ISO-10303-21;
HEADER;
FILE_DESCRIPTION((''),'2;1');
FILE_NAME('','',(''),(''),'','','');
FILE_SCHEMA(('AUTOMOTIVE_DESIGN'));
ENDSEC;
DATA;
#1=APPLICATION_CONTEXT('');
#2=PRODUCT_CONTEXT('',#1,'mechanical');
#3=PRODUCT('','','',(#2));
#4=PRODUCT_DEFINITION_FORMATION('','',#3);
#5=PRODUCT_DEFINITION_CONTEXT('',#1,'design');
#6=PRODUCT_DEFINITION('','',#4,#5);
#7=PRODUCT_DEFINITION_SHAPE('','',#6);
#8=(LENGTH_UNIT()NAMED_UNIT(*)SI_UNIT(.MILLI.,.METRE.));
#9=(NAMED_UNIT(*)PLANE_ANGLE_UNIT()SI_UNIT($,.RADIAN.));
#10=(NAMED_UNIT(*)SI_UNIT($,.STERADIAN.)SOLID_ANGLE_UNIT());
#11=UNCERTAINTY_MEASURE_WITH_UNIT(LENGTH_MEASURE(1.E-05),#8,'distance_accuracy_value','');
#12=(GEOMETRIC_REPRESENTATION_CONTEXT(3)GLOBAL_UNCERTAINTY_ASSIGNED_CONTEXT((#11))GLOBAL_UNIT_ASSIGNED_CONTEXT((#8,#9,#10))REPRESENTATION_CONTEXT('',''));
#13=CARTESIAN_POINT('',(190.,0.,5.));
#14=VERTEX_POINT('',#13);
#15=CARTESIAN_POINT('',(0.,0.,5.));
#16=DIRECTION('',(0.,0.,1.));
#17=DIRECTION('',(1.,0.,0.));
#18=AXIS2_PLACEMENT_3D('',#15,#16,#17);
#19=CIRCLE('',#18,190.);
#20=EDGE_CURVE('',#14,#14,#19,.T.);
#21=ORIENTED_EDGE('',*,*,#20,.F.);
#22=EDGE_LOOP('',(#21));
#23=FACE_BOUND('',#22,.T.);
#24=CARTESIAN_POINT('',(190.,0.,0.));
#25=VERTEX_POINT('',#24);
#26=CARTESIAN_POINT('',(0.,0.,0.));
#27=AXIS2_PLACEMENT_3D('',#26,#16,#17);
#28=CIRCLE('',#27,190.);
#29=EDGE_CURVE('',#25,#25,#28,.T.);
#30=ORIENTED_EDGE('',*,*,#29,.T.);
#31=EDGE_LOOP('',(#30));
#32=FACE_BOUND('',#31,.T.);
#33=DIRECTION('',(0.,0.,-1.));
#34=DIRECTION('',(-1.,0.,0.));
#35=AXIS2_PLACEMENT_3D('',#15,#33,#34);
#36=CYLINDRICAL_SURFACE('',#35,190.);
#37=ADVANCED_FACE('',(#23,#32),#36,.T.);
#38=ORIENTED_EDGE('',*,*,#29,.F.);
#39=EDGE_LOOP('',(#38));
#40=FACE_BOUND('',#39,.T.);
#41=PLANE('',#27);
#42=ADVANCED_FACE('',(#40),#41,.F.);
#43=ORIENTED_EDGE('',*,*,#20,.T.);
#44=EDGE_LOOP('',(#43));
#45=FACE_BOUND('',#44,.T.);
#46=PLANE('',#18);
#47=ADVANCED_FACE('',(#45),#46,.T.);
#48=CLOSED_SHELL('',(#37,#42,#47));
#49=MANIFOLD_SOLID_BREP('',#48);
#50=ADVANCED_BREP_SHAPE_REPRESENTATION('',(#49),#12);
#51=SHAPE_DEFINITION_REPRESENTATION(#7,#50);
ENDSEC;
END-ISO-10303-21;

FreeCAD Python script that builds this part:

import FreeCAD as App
import Part
import Sketcher
from FreeCAD import Vector

doc = App.newDocument("Part")
body = doc.addObject("PartDesign::Body", "Body")

# Sketch on XY plane
sketch1 = body.newObject("Sketcher::SketchObject", "Sketch")
sketch1.AttachmentSupport = (doc.getObject("XY_Plane"), [""])
sketch1.MapMode = "FlatFace"
sketch1.addGeometry(Part.Circle(Vector(0, 0, 0), Vector(0, 0, 1), 190), False)
sketch1.addConstraint(Sketcher.Constraint("Coincident", 0, 3, -1, 1))
sketch1.addConstraint(Sketcher.Constraint("Diameter", 0, 380.0))
pad1 = body.newObject("PartDesign::Pad", "Pad")
pad1.Profile = sketch1
pad1.Length = 5

doc.recompute()
